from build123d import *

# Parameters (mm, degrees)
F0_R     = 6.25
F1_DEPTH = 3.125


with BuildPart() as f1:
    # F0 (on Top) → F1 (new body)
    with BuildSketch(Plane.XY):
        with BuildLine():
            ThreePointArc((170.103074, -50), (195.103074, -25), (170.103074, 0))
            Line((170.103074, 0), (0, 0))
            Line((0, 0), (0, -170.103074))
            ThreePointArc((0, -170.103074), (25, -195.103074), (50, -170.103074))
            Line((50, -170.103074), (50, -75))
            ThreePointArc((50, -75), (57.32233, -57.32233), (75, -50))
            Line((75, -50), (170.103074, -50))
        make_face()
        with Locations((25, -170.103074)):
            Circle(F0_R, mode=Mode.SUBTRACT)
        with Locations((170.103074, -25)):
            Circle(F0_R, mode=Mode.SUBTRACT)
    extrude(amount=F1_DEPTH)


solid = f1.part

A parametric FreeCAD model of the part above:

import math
import FreeCAD as App
import Part
import Sketcher
from FreeCAD import Vector
Q = App.Units.Quantity

doc = App.newDocument("Part")
body = doc.addObject("PartDesign::Body", "Body")

# Sketch on XY plane
sketch1 = doc.addObject("Sketcher::SketchObject", "Sketch")
body.addObject(sketch1)
sketch1.AttachmentSupport = (doc.XY_Plane, [""])
sketch1.MapMode = "FlatFace"
sketch1.addGeometry(Part.ArcOfCircle(Part.Circle(Vector(170.103074, -25, 0), Vector(0, 0, 1), 25), math.radians(-90), math.radians(90)), False)
sketch1.addGeometry(Part.LineSegment(Vector(170.103074, 0, 0), Vector(0, 0, 0)), False)
sketch1.addGeometry(Part.LineSegment(Vector(0, 0, 0), Vector(0, -170.103074, 0)), False)
sketch1.addGeometry(Part.ArcOfCircle(Part.Circle(Vector(25, -170.103074, 0), Vector(0, 0, 1), 25), math.radians(180), math.radians(360)), False)
sketch1.addGeometry(Part.LineSegment(Vector(50, -170.103074, 0), Vector(50, -75, 0)), False)
sketch1.addGeometry(Part.ArcOfCircle(Part.Circle(Vector(74.999998, -74.999998, 0), Vector(0, 0, 1), 24.999998), math.radians(89.999996), math.radians(180.000004)), False)
sketch1.addGeometry(Part.LineSegment(Vector(75, -50, 0), Vector(170.103074, -50, 0)), False)
sketch1.addGeometry(Part.Circle(Vector(25, -170.103074, 0), Vector(0, 0, 1), 6.25), False)
sketch1.addGeometry(Part.Circle(Vector(170.103074, -25, 0), Vector(0, 0, 1), 6.25), False)
sketch1.addConstraint(Sketcher.Constraint("Tangent", 0, 2, 1, 1))
sketch1.addConstraint(Sketcher.Constraint("Coincident", 1, 2, 2, 1))
sketch1.addConstraint(Sketcher.Constraint("Tangent", 2, 2, 3, 1))
sketch1.addConstraint(Sketcher.Constraint("Tangent", 3, 2, 4, 1))
sketch1.addConstraint(Sketcher.Constraint("Tangent", 4, 2, 5, 2))
sketch1.addConstraint(Sketcher.Constraint("Tangent", 5, 1, 6, 1))
sketch1.addConstraint(Sketcher.Constraint("Tangent", 6, 2, 0, 1))
sketch1.addConstraint(Sketcher.Constraint("Horizontal", 1))
sketch1.addConstraint(Sketcher.Constraint("Vertical", 2))
sketch1.addConstraint(Sketcher.Constraint("Vertical", 4))
sketch1.addConstraint(Sketcher.Constraint("Horizontal", 6))
sketch1.addConstraint(Sketcher.Constraint("Coincident", 1, 2, -1, 1))
sketch1.addConstraint(Sketcher.Constraint("Coincident", 7, 3, 3, 3))
sketch1.addConstraint(Sketcher.Constraint("Coincident", 8, 3, 0, 3))
sketch1.addConstraint(Sketcher.Constraint("Equal", 0, 3))
sketch1.addConstraint(Sketcher.Constraint("Equal", 3, 5))
sketch1.addConstraint(Sketcher.Constraint("Equal", 7, 8))
sketch1.addConstraint(Sketcher.Constraint("Equal", 1, 2))
sketch1.addConstraint(Sketcher.Constraint("Radius", 0, Q("25 mm")))
sketch1.addConstraint(Sketcher.Constraint("Diameter", 7, Q("12.5 mm")))
sketch1.addConstraint(Sketcher.Constraint("DistanceX", 1, 2, 1, 1, Q("170.103074 mm")))
pad1 = doc.addObject("PartDesign::Pad", "Pad")
body.addObject(pad1)
pad1.Profile = sketch1
pad1.Length = 3.125

doc.recompute()
